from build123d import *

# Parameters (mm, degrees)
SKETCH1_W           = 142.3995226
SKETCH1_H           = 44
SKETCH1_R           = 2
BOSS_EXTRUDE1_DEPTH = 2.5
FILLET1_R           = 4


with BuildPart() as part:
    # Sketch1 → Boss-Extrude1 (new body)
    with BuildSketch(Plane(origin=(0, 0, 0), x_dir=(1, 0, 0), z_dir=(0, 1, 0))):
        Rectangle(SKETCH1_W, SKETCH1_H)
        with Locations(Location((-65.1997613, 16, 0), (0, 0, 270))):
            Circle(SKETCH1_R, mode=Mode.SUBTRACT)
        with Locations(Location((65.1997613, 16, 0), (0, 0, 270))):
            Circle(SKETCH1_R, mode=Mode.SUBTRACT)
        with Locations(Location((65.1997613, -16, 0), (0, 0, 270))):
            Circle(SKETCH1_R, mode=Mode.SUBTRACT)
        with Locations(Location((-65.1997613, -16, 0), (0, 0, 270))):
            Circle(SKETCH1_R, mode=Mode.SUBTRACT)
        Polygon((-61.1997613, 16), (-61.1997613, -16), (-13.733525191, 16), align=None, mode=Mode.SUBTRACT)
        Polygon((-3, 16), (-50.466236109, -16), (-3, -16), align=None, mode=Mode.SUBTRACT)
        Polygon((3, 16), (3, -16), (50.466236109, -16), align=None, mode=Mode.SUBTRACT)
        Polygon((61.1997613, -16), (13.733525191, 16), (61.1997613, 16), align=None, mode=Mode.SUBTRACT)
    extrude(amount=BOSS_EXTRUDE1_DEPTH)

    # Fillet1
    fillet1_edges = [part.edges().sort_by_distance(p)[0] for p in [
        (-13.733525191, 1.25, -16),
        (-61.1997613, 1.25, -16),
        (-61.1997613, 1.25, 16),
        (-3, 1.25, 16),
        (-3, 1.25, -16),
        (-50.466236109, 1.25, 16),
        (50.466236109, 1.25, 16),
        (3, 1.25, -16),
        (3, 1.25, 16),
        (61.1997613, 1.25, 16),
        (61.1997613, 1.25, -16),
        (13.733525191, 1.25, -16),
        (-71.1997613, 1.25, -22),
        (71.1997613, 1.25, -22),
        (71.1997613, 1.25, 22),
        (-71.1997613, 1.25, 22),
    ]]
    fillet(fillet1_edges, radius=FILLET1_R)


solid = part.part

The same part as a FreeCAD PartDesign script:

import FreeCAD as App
import Part
import Sketcher

V = App.Vector


def edges_at(feature, points):
    """Names of the edges that pass closest to the given points."""
    edges = feature.Shape.Edges
    near = lambda p: min(range(len(edges)), key=lambda i: edges[i].distToShape(Part.Vertex(*p))[0])
    return sorted({f"Edge{near(p) + 1}" for p in points})


def add_polygon(sketch, points):
    """Adds a closed chain of lines whose ends are joined by coincident constraints."""
    first, n = sketch.GeometryCount, len(points)
    for a, b in zip(points, points[1:] + points[:1]):
        sketch.addGeometry(Part.LineSegment(App.Vector(*a, 0), App.Vector(*b, 0)), False)
    for i in range(n):
        sketch.addConstraint(Sketcher.Constraint("Coincident", first + i, 2, first + (i + 1) % n, 1))

doc = App.newDocument("Part")
params = doc.addObject("Spreadsheet::Sheet", "Params")
for row, (alias, value) in enumerate([
    ("sketch1_diameter", "4 mm"),
    ("sketch1_height", "44 mm"),
    ("sketch1_height2", "32 mm"),
    ("pad1_length", "2.5 mm"),
    ("fillet_radius", "4 mm"),
], start=1):
    params.set(f"A{row}", alias)
    params.set(f"B{row}", "=" + value)
    params.setAlias(f"B{row}", alias)

body = doc.addObject("PartDesign::Body", "Body")

sketch1 = doc.addObject("Sketcher::SketchObject", "Sketch")
body.addObject(sketch1)
sketch1.AttachmentSupport = (doc.XZ_Plane, [""])
sketch1.MapMode = "FlatFace"
add_polygon(sketch1, [(-71.199761, -22), (-71.199761, 22), (71.199761, 22), (71.199761, -22)])
sketch1.addGeometry(Part.Circle(V(-65.199761, 16, 0), V(0, 0, 1), 2), False)
sketch1.addGeometry(Part.Circle(V(65.199761, 16, 0), V(0, 0, 1), 2), False)
add_polygon(sketch1, [(-61.199761, 16), (-61.199761, -16), (-13.733525, -16)])
add_polygon(sketch1, [(-50.466236, 16), (-3, -16), (-3, 16)])
sketch1.addGeometry(Part.Circle(V(-65.199761, -16, 0), V(0, 0, 1), 2), False)
add_polygon(sketch1, [(3, 16), (3, -16), (50.466236, 16)])
add_polygon(sketch1, [(61.199761, -16), (61.199761, 16), (13.733525, -16)])
sketch1.addGeometry(Part.Circle(V(65.199761, -16, 0), V(0, 0, 1), 2), False)
sketch1.addConstraint([
    Sketcher.Constraint("Vertical", 0),
    Sketcher.Constraint("Horizontal", 1),
    Sketcher.Constraint("Vertical", 2),
    Sketcher.Constraint("Horizontal", 3),
    Sketcher.Constraint("Vertical", 6),
    Sketcher.Constraint("Horizontal", 7),
    Sketcher.Constraint("Vertical", 10),
    Sketcher.Constraint("Horizontal", 11),
    Sketcher.Constraint("Vertical", 13),
    Sketcher.Constraint("Horizontal", 15),
    Sketcher.Constraint("Vertical", 16),
    Sketcher.Constraint("Horizontal", 18),
    Sketcher.Constraint("Equal", 4, 5),
    Sketcher.Constraint("Equal", 5, 12),
    Sketcher.Constraint("Equal", 12, 19),
    Sketcher.Constraint("Symmetric", 5, 3, 12, 3, -1, 1),
    Sketcher.Constraint("Symmetric", 4, 3, 19, 3, -1, 1),
    Sketcher.Constraint("Symmetric", 0, 2, 2, 2, -1, 1),
    Sketcher.Constraint("Symmetric", 10, 2, 13, 2, -1, 1),
    Sketcher.Constraint("Symmetric", 6, 2, 16, 2, -1, 1),
    Sketcher.Constraint("Symmetric", 4, 3, 5, 3, -2),
    Sketcher.Constraint("Symmetric", 11, 2, 14, 2, -2),
    Sketcher.Constraint("Symmetric", 7, 2, 17, 2, -2),
    Sketcher.Constraint("Parallel", 8, 9),
    Sketcher.Constraint("Parallel", 14, 17),
    Sketcher.Constraint("Horizontal", 19, 3, 6, 2),
    Sketcher.Constraint("Horizontal", 5, 3, 8, 2),
    Sketcher.Constraint("Horizontal", 7, 2, 9, 2),
    Sketcher.Constraint("Diameter", 4, 4.0),
    Sketcher.Constraint("DistanceY", 0, 1, 0, 2, 44.0),
    Sketcher.Constraint("DistanceY", 6, 2, 6, 1, 32.0),
    Sketcher.Constraint("DistanceX", 9, 2, -1, 1, 3.0),
    Sketcher.Constraint("DistanceX", 0, 2, 4, 3, 6.0),
    Sketcher.Constraint("DistanceX", 12, 3, 6, 2, 4.0),
    Sketcher.Constraint("DistanceX", 1, 1, 1, 2, 142.399523),
    Sketcher.Constraint("DistanceX", 7, 1, 7, 2, 47.466236),
])
sketch1.setExpression("Constraints[44]", "Params.sketch1_diameter")
sketch1.setExpression("Constraints[45]", "Params.sketch1_height")
sketch1.setExpression("Constraints[46]", "Params.sketch1_height2")
pad1 = doc.addObject("PartDesign::Pad", "Pad")
body.addObject(pad1)
pad1.Profile = sketch1
pad1.setExpression("Length", "Params.pad1_length")
pad1.Reversed = True
doc.recompute()

fillet = doc.addObject("PartDesign::Fillet", "Fillet")
body.addObject(fillet)
fillet.Base = (pad1, edges_at(pad1, [
    (-13.734, 1.25, -16),
    (-61.2, 1.25, -16),
    (-61.2, 1.25, 16),
    (-3, 1.25, 16),
    (-3, 1.25, -16),
    (-50.466, 1.25, 16),
    (50.466, 1.25, 16),
    (3, 1.25, -16),
    (3, 1.25, 16),
    (61.2, 1.25, 16),
    (61.2, 1.25, -16),
    (13.734, 1.25, -16),
    (-71.2, 1.25, -22),
    (71.2, 1.25, -22),
    (71.2, 1.25, 22),
    (-71.2, 1.25, 22),
]))
fillet.setExpression("Radius", "Params.fillet_radius")

doc.recompute()
